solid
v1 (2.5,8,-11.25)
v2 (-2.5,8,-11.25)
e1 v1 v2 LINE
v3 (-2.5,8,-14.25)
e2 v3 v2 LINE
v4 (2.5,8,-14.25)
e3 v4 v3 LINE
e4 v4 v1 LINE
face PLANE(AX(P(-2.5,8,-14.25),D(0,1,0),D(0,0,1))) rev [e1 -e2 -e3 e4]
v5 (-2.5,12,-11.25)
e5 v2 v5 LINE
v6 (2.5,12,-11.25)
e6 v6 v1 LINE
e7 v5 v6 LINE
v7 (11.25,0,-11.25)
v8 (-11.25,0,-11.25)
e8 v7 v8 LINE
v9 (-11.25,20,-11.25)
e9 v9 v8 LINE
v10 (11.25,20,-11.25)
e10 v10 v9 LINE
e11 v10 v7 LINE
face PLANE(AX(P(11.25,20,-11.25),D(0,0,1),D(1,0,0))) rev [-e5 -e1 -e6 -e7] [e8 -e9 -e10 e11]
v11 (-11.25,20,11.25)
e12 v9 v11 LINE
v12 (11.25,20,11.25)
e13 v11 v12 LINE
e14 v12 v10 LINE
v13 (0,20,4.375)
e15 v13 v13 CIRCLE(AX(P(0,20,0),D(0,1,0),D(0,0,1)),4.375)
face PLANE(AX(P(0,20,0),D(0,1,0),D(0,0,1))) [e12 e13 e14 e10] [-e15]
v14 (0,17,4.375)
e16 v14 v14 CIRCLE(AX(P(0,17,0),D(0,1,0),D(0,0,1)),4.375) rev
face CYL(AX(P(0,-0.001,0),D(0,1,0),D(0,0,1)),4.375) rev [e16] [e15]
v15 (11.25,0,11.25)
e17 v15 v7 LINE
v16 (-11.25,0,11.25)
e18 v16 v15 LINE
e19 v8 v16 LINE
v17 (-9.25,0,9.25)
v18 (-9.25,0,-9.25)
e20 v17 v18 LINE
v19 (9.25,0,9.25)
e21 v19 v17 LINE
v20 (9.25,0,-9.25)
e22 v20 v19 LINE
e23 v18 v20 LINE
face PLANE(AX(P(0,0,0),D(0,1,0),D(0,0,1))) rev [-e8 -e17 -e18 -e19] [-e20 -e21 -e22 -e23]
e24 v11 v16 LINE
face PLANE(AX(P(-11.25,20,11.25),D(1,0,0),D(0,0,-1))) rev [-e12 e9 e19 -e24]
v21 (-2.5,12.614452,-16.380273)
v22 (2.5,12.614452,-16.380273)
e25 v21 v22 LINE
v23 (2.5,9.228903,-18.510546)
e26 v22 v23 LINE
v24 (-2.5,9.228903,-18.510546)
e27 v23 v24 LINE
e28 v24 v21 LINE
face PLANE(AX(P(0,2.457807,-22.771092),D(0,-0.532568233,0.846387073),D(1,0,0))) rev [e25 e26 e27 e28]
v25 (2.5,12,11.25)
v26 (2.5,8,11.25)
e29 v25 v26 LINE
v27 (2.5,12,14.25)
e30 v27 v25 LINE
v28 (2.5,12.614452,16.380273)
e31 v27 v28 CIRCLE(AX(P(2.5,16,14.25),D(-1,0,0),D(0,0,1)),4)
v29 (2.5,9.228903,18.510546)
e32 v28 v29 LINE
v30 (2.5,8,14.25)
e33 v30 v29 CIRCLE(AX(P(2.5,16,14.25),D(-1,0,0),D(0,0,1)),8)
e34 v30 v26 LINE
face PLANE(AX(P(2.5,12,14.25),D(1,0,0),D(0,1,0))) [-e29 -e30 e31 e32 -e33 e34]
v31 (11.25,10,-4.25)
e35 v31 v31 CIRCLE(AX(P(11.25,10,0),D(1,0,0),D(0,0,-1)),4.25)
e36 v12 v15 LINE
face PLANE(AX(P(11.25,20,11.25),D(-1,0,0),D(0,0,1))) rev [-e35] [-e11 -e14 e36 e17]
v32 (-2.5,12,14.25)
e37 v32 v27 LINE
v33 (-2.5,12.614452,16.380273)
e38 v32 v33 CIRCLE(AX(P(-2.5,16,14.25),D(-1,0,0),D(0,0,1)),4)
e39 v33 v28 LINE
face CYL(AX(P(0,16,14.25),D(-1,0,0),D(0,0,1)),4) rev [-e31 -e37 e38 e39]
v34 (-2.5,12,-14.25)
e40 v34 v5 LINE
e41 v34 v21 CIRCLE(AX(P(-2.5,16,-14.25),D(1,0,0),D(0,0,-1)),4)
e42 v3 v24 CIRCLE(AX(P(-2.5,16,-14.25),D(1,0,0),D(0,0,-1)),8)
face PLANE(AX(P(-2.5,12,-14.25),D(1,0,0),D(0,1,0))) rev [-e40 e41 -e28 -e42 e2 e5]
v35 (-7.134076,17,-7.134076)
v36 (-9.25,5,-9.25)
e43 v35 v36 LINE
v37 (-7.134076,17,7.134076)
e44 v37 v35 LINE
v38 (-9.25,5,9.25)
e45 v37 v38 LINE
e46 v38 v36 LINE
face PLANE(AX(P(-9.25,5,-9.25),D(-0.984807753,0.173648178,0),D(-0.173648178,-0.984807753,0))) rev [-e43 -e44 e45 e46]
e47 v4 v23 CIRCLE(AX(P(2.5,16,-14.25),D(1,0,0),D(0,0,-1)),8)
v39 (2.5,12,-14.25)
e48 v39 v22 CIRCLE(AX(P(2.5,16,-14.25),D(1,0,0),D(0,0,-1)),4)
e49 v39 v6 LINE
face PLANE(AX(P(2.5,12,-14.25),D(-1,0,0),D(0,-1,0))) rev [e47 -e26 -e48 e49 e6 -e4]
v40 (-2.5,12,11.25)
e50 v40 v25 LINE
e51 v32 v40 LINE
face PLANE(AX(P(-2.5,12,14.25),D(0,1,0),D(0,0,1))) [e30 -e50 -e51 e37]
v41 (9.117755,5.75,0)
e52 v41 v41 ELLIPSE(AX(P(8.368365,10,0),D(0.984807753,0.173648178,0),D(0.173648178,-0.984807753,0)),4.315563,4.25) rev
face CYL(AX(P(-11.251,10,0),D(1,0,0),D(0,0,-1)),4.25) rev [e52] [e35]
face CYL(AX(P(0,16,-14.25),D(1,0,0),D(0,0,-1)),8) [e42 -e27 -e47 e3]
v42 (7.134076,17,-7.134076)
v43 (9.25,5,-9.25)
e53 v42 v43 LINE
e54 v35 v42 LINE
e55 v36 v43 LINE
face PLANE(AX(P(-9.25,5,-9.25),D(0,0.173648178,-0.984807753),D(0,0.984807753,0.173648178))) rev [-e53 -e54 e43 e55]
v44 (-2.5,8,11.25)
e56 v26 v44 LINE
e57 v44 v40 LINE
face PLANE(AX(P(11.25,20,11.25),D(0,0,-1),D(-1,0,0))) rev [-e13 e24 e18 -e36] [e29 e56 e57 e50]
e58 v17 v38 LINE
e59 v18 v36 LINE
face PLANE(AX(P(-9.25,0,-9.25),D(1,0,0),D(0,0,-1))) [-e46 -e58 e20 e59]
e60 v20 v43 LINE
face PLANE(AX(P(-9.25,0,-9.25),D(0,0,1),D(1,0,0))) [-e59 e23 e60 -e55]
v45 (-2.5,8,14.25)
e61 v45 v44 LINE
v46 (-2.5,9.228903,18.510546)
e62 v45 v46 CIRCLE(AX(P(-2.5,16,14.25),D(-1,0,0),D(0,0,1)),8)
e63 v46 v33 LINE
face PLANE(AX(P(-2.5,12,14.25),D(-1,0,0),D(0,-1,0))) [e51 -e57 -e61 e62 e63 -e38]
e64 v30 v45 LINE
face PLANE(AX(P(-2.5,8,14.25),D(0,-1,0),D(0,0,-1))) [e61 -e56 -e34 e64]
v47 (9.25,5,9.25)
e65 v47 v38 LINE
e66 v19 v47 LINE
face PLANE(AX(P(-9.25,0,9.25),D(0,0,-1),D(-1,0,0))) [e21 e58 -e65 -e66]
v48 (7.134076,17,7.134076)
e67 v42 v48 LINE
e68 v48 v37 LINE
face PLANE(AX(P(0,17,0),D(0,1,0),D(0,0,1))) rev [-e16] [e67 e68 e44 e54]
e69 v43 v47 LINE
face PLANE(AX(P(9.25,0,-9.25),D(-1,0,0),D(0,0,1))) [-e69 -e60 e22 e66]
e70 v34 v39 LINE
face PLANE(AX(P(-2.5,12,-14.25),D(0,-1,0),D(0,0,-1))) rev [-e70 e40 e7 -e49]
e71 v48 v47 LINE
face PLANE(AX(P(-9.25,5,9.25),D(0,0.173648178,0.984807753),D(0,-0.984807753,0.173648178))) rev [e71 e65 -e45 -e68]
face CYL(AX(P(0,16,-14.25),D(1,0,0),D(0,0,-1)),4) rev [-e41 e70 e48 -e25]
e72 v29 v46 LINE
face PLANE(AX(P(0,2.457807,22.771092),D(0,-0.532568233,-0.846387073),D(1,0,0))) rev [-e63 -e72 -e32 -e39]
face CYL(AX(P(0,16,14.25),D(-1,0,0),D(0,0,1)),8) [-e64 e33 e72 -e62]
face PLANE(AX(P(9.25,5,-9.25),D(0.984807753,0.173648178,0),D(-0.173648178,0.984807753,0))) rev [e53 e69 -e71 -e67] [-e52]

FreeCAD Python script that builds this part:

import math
import FreeCAD as App
import Part
import Sketcher
from FreeCAD import Vector
Q = App.Units.Quantity


def add_polygon(sketch, points):
    """Adds a closed chain of lines whose ends are joined by coincident constraints."""
    first, n = sketch.GeometryCount, len(points)
    for a, b in zip(points, points[1:] + points[:1]):
        sketch.addGeometry(Part.LineSegment(App.Vector(*a, 0), App.Vector(*b, 0)), False)
    for i in range(n):
        sketch.addConstraint(Sketcher.Constraint("Coincident", first + i, 2, first + (i + 1) % n, 1))

doc = App.newDocument("Part")
body = doc.addObject("PartDesign::Body", "Body")

# Sketch on XZ plane
sketch1 = doc.addObject("Sketcher::SketchObject", "Sketch")
body.addObject(sketch1)
sketch1.AttachmentSupport = (doc.XZ_Plane, [""])
sketch1.MapMode = "FlatFace"
add_polygon(sketch1, [(-11.25, -11.25), (-11.25, 11.25), (11.25, 11.25), (11.25, -11.25)])  # lines 0-3
sketch1.addConstraint([
    Sketcher.Constraint("Vertical", 0),
    Sketcher.Constraint("Horizontal", 1),
    Sketcher.Constraint("Vertical", 2),
    Sketcher.Constraint("Horizontal", 3),
    Sketcher.Constraint("Symmetric", 0, 2, 2, 2, -1, 1),
    Sketcher.Constraint("Equal", 3, 0),
    Sketcher.Constraint("DistanceX", 1, 1, 1, 2, Q("22.5 mm")),
])
pad1 = doc.addObject("PartDesign::Pad", "Pad")
body.addObject(pad1)
pad1.Profile = sketch1
pad1.Length = 20
pad1.Reversed = True

# Sketch on XZ plane
sketch2 = doc.addObject("Sketcher::SketchObject", "Sketch001")
body.addObject(sketch2)
sketch2.AttachmentSupport = (doc.XZ_Plane, [""])
sketch2.MapMode = "FlatFace"
sketch2.AttachmentOffset = App.Placement(Vector(0, 0, -5), App.Rotation())
add_polygon(sketch2, [(-9.25, 9.25), (-9.25, -9.25), (9.25, -9.25), (9.25, 9.25)])  # lines 0-3
sketch2.addConstraint([
    Sketcher.Constraint("Vertical", 0),
    Sketcher.Constraint("Horizontal", 1),
    Sketcher.Constraint("Vertical", 2),
    Sketcher.Constraint("Horizontal", 3),
    Sketcher.Constraint("Symmetric", 0, 2, 2, 2, -1, 1),
    Sketcher.Constraint("Equal", 3, 0),
    Sketcher.Constraint("DistanceX", 1, 1, 1, 2, Q("18.5 mm")),
])
pocket1 = doc.addObject("PartDesign::Pocket", "Pocket")
body.addObject(pocket1)
pocket1.Profile = sketch2
pocket1.Length = 12
pocket1.TaperAngle = -10

# Sketch on XZ plane
sketch3 = doc.addObject("Sketcher::SketchObject", "Sketch002")
body.addObject(sketch3)
sketch3.AttachmentSupport = (doc.XZ_Plane, [""])
sketch3.MapMode = "FlatFace"
sketch3.AttachmentOffset = App.Placement(Vector(0, 0, -5), App.Rotation())
add_polygon(sketch3, [(-9.25, 9.25), (-9.25, -9.25), (9.25, -9.25), (9.25, 9.25)])  # lines 0-3
sketch3.addConstraint([
    Sketcher.Constraint("Vertical", 0),
    Sketcher.Constraint("Horizontal", 1),
    Sketcher.Constraint("Vertical", 2),
    Sketcher.Constraint("Horizontal", 3),
    Sketcher.Constraint("Symmetric", 0, 2, 2, 2, -1, 1),
    Sketcher.Constraint("Equal", 3, 0),
    Sketcher.Constraint("DistanceX", 1, 1, 1, 2, Q("18.5 mm")),
])
pocket2 = doc.addObject("PartDesign::Pocket", "Pocket001")
body.addObject(pocket2)
pocket2.Profile = sketch3
pocket2.Length = 5
pocket2.Reversed = True

# Sketch on XZ plane
sketch4 = doc.addObject("Sketcher::SketchObject", "Sketch003")
body.addObject(sketch4)
sketch4.AttachmentSupport = (doc.XZ_Plane, [""])
sketch4.MapMode = "FlatFace"
sketch4.AttachmentOffset = App.Placement(Vector(0, 0, -20), App.Rotation())
sketch4.addGeometry(Part.Circle(Vector(0, 0, 0), Vector(0, 0, 1), 4.375), False)
sketch4.addConstraint([
    Sketcher.Constraint("Coincident", 0, 3, -1, 1),
    Sketcher.Constraint("Diameter", 0, Q("8.75 mm")),
])
pocket3 = doc.addObject("PartDesign::Pocket", "Pocket002")
body.addObject(pocket3)
pocket3.Profile = sketch4
pocket3.Type = "UpToFirst"
pocket3.Reversed = True

# Sketch on YZ plane
sketch5 = doc.addObject("Sketcher::SketchObject", "Sketch004")
body.addObject(sketch5)
sketch5.AttachmentSupport = (doc.YZ_Plane, [""])
sketch5.MapMode = "FlatFace"
sketch5.AttachmentOffset = App.Placement(Vector(0, 0, 11.25), App.Rotation())
sketch5.addGeometry(Part.Circle(Vector(10, 0, 0), Vector(0, 0, 1), 4.25), False)
sketch5.addConstraint([
    Sketcher.Constraint("PointOnObject", 0, 3, -1),
    Sketcher.Constraint("Diameter", 0, Q("8.5 mm")),
    Sketcher.Constraint("DistanceX", -1, 1, 0, 3, Q("10 mm")),
])
pocket4 = doc.addObject("PartDesign::Pocket", "Pocket003")
body.addObject(pocket4)
pocket4.Profile = sketch5
pocket4.Type = "UpToFirst"

# Sketch on XY plane
sketch6 = doc.addObject("Sketcher::SketchObject", "Sketch005")
body.addObject(sketch6)
sketch6.AttachmentSupport = (doc.XY_Plane, [""])
sketch6.MapMode = "FlatFace"
sketch6.AttachmentOffset = App.Placement(Vector(0, 0, -11.25), App.Rotation())
add_polygon(sketch6, [(2.5, 12), (2.5, 8), (-2.5, 8), (-2.5, 12)])  # lines 0-3
sketch6.addConstraint([
    Sketcher.Constraint("Vertical", 0),
    Sketcher.Constraint("Horizontal", 1),
    Sketcher.Constraint("Vertical", 2),
    Sketcher.Constraint("Horizontal", 3),
    Sketcher.Constraint("DistanceX", 1, 2, 1, 1, Q("5 mm")),
    Sketcher.Constraint("DistanceY", 0, 2, 0, 1, Q("4 mm")),
    Sketcher.Constraint("DistanceY", -1, 1, 0, 2, Q("8 mm")),
    Sketcher.Constraint("DistanceX", -1, 1, 0, 2, Q("2.5 mm")),
])

# Sketch on YZ plane
sketch7 = doc.addObject("Sketcher::SketchObject", "Sketch006")
body.addObject(sketch7)
sketch7.AttachmentSupport = (doc.YZ_Plane, [""])
sketch7.MapMode = "FlatFace"
sketch7.addGeometry([
    Part.LineSegment(Vector(10, -11.25, 0), Vector(10, -14.25, 0)),
    Part.ArcOfCircle(Part.Circle(Vector(16, -14.25, 0), Vector(0, 0, 1), 6), math.radians(-180), math.radians(-147.820855)),
], False)
sketch7.addConstraint([
    Sketcher.Constraint("Tangent", 0, 2, 1, 1),
    Sketcher.Constraint("Vertical", 0),
    Sketcher.Constraint("Radius", 1, Q("6 mm")),
    Sketcher.Constraint("DistanceY", 0, 2, 0, 1, Q("3 mm")),
    Sketcher.Constraint("DistanceX", -1, 1, 1, 3, Q("16 mm")),
    Sketcher.Constraint("DistanceY", 1, 3, -1, 1, Q("14.25 mm")),
    Sketcher.Constraint("DistanceY", 1, 2, -1, 1, Q("17.445409 mm")),
])
doc.recompute()

additivepipe = doc.addObject("PartDesign::AdditivePipe", "AdditivePipe")
body.addObject(additivepipe)
additivepipe.Profile = sketch6
additivepipe.Spine = (sketch7, ["Edge1", "Edge2"])
doc.recompute()

mirrored = doc.addObject("PartDesign::Mirrored", "Mirrored")
body.addObject(mirrored)
mirrored.Originals = [additivepipe]
mirrored.MirrorPlane = (doc.XY_Plane, [""])
body.Tip = mirrored

doc.recompute()
